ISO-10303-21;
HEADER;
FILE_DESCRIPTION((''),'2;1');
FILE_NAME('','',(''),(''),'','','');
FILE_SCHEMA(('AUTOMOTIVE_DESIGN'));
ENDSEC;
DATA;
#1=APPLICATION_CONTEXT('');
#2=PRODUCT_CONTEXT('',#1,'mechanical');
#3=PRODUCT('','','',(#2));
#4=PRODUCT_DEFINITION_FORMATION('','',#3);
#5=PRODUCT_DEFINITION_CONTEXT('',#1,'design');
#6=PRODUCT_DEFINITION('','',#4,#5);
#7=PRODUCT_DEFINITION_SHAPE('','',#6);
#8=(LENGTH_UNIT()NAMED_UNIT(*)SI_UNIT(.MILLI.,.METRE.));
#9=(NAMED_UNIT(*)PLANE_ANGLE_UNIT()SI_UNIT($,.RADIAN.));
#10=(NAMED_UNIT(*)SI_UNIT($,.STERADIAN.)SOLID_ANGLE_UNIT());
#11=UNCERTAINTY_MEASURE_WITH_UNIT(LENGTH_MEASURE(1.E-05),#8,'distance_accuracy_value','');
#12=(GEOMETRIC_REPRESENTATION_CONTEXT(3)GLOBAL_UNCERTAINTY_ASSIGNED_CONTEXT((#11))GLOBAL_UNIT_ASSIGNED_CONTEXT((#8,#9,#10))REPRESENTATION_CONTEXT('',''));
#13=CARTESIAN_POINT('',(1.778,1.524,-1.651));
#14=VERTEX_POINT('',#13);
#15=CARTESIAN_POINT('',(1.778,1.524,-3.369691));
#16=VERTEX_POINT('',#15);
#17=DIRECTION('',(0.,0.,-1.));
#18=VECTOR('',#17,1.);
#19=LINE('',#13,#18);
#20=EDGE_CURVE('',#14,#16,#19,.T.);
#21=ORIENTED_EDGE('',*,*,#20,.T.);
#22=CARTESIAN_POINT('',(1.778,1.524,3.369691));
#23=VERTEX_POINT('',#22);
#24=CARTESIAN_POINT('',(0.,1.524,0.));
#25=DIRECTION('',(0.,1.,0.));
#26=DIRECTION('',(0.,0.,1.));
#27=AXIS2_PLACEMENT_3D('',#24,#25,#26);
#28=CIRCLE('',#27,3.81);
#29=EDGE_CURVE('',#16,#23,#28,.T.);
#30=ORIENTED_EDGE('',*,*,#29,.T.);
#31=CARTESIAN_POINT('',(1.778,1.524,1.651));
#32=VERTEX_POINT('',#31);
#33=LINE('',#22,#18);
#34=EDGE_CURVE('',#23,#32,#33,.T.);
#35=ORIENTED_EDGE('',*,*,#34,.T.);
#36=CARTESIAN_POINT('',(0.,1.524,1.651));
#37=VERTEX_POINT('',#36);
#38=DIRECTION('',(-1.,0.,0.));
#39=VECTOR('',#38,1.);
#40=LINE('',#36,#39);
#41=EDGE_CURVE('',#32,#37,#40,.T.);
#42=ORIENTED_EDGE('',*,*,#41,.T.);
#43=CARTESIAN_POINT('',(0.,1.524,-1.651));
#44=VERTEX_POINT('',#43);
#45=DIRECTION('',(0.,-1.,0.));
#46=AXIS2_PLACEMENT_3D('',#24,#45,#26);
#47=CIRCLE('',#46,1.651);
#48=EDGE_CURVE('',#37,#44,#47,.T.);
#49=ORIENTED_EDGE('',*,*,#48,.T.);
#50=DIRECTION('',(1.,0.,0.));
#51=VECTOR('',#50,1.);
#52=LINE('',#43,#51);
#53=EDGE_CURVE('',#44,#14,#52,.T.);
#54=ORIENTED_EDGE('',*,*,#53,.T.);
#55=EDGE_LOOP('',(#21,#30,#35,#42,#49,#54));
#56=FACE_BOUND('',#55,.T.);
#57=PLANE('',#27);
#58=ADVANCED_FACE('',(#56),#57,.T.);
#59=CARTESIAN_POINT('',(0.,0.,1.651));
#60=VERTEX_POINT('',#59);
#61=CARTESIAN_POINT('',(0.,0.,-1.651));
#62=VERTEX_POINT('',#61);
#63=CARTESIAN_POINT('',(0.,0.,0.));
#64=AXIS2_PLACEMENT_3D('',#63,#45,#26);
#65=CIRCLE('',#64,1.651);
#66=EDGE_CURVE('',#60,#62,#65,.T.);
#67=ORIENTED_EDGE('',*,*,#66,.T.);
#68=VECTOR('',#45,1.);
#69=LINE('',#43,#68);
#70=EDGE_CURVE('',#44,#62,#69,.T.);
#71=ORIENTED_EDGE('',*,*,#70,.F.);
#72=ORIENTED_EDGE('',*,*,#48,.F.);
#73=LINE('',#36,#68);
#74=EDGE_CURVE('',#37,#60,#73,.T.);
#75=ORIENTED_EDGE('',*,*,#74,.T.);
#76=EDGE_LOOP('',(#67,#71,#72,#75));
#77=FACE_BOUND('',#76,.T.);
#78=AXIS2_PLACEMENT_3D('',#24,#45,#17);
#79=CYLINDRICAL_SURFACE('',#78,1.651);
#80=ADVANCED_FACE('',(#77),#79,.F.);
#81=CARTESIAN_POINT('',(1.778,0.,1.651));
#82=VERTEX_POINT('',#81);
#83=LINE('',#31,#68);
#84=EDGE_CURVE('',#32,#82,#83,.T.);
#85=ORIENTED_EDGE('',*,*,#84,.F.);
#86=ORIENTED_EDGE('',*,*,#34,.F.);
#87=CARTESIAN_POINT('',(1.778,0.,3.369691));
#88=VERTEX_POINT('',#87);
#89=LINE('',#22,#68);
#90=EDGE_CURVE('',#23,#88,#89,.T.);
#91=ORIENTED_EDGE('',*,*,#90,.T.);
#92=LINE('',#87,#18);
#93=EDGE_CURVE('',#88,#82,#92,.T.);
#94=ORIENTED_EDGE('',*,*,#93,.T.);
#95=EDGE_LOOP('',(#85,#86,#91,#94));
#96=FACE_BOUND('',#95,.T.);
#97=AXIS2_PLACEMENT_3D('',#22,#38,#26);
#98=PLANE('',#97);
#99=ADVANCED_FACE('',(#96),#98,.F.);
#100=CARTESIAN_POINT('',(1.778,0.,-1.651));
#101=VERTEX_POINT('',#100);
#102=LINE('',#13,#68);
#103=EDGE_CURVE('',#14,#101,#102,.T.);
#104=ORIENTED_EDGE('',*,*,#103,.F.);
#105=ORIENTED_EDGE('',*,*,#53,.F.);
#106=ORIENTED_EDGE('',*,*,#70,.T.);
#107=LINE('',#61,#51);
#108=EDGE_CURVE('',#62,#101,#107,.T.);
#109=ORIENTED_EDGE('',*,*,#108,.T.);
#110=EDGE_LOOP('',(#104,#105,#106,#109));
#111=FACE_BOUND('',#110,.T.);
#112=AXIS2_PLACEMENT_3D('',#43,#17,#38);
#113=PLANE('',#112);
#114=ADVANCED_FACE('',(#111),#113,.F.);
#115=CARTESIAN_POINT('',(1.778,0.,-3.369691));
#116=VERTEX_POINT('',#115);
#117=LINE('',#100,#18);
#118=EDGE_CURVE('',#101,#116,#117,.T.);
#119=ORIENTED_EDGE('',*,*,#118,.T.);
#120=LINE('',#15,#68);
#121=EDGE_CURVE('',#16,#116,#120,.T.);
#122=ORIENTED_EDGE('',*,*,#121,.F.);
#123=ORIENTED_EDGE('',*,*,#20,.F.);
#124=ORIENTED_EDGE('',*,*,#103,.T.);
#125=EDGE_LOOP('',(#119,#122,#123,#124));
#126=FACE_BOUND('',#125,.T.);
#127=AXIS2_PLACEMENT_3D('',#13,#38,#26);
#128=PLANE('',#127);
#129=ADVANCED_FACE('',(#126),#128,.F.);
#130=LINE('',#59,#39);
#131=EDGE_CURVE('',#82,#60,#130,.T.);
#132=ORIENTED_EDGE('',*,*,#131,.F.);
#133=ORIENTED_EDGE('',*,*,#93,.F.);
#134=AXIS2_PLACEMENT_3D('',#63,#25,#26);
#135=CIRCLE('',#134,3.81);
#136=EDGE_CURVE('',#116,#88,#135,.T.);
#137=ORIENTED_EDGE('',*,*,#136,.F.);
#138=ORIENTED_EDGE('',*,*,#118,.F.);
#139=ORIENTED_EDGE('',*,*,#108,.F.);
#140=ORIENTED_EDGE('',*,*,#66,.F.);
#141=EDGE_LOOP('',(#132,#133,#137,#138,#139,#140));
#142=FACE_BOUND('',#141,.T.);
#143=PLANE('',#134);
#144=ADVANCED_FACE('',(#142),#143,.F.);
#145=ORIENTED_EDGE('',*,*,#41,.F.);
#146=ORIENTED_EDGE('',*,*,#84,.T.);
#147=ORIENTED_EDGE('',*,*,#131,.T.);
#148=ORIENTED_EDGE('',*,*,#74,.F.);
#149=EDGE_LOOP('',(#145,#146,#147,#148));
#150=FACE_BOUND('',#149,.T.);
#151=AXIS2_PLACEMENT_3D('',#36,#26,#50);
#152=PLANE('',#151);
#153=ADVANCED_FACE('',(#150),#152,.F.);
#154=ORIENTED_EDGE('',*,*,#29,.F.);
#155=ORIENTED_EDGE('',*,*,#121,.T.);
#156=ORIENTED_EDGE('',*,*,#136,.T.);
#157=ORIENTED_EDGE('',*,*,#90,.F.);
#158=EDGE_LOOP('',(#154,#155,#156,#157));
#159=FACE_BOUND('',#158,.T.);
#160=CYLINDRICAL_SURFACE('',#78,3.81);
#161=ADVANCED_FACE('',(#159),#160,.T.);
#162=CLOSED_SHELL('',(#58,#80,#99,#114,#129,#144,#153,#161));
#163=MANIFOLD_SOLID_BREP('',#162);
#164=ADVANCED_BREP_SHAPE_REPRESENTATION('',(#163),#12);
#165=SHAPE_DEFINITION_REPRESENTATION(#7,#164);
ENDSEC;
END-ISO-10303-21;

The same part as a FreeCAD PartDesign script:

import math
import FreeCAD as App
import Part
import Sketcher
from FreeCAD import Vector
Q = App.Units.Quantity

doc = App.newDocument("Part")
body = doc.addObject("PartDesign::Body", "Body")

# Sketch on XZ plane
sketch1 = body.newObject("Sketcher::SketchObject", "Sketch")
sketch1.AttachmentSupport = (doc.getObject("XZ_Plane"), [""])
sketch1.MapMode = "FlatFace"
sketch1.addGeometry(Part.LineSegment(Vector(0, -1.7, 0), Vector(1.8, -1.7, 0)), False)
sketch1.addGeometry(Part.LineSegment(Vector(1.8, -1.7, 0), Vector(1.8, -3.4, 0)), False)
sketch1.addGeometry(Part.ArcOfCircle(Part.Circle(Vector(0, 0, 0), Vector(0, 0, 1), 3.8), math.radians(62), math.radians(298)), False)
sketch1.addGeometry(Part.LineSegment(Vector(1.8, 3.4, 0), Vector(1.8, 1.7, 0)), False)
sketch1.addGeometry(Part.LineSegment(Vector(1.8, 1.7, 0), Vector(0, 1.7, 0)), False)
sketch1.addGeometry(Part.ArcOfCircle(Part.Circle(Vector(0, 0, 0), Vector(0, 0, 1), 1.7), math.radians(90), math.radians(270)), False)
sketch1.addConstraint(Sketcher.Constraint("Coincident", 0, 2, 1, 1))
sketch1.addConstraint(Sketcher.Constraint("Coincident", 1, 2, 2, 2))
sketch1.addConstraint(Sketcher.Constraint("Coincident", 2, 1, 3, 1))
sketch1.addConstraint(Sketcher.Constraint("Coincident", 3, 2, 4, 1))
sketch1.addConstraint(Sketcher.Constraint("Tangent", 4, 2, 5, 1))
sketch1.addConstraint(Sketcher.Constraint("Tangent", 5, 2, 0, 1))
sketch1.addConstraint(Sketcher.Constraint("Horizontal", 0))
sketch1.addConstraint(Sketcher.Constraint("Vertical", 1))
sketch1.addConstraint(Sketcher.Constraint("Vertical", 3))
sketch1.addConstraint(Sketcher.Constraint("Horizontal", 4))
sketch1.addConstraint(Sketcher.Constraint("Coincident", 2, 3, -1, 1))
sketch1.addConstraint(Sketcher.Constraint("Coincident", 5, 3, -1, 1))
sketch1.addConstraint(Sketcher.Constraint("Vertical", 1, 2, 2, 1))
sketch1.addConstraint(Sketcher.Constraint("Radius", 2, Q("0.15 in")))
sketch1.addConstraint(Sketcher.Constraint("Radius", 5, Q("0.065 in")))
sketch1.addConstraint(Sketcher.Constraint("DistanceX", 0, 1, 0, 2, Q("0.07 in")))
pad1 = body.newObject("PartDesign::Pad", "Pad")
pad1.Profile = sketch1
pad1.Length = Q("0.06 in")
pad1.Reversed = True

doc.recompute()
